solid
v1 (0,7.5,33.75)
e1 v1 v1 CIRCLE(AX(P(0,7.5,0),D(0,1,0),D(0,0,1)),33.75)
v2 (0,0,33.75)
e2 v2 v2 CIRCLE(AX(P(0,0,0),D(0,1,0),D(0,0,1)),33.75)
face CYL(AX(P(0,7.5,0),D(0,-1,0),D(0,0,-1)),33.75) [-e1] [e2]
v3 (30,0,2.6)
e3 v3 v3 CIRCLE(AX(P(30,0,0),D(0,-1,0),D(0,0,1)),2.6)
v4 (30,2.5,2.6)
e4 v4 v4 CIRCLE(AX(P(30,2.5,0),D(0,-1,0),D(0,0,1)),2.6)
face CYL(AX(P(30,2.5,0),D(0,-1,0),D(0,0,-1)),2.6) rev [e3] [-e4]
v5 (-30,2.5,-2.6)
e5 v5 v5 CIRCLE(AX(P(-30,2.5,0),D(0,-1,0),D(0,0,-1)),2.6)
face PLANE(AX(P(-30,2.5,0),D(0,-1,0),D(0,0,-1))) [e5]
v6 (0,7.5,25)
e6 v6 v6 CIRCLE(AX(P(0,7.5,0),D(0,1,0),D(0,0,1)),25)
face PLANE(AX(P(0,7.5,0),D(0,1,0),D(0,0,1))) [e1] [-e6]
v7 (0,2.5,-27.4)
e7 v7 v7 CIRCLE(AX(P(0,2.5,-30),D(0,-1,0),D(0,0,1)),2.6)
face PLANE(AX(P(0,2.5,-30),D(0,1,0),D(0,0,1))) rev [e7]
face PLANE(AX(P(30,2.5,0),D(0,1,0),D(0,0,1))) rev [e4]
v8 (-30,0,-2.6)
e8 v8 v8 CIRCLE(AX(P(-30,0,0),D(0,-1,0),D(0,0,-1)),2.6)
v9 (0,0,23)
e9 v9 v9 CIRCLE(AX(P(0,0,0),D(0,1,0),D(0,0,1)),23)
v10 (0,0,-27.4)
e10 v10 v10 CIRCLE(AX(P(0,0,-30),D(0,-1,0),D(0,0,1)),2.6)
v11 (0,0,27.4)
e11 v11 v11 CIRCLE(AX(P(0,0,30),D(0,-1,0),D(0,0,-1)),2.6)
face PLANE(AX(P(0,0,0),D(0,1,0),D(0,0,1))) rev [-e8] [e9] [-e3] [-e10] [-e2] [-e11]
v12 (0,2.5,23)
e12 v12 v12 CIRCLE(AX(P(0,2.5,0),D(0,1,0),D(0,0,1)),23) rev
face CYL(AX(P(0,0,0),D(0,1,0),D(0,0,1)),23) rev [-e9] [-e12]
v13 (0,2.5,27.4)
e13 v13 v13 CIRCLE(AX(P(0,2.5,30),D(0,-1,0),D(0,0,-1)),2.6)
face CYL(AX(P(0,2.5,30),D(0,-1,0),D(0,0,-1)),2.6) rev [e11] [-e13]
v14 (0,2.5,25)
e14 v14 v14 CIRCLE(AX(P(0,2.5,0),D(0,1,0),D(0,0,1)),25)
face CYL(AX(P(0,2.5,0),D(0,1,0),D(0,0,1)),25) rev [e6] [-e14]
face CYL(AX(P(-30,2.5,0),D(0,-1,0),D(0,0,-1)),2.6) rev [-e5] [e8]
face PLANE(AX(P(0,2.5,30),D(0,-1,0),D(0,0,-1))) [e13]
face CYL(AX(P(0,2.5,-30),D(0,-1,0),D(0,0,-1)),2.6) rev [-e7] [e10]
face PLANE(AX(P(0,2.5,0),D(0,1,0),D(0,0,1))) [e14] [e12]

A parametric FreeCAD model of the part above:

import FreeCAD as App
import Part
import Sketcher
from FreeCAD import Vector
Q = App.Units.Quantity

doc = App.newDocument("Part")
body = doc.addObject("PartDesign::Body", "Body")

sketch1 = body.newObject("Sketcher::SketchObject", "Sketch")
sketch1.AttachmentSupport = (doc.getObject("XZ_Plane"), [""])
sketch1.MapMode = "FlatFace"
sketch1.addGeometry(Part.Circle(Vector(0, 0, 0), Vector(0, 0, 1), 34), False)
sketch1.addConstraint(Sketcher.Constraint("Coincident", 0, 3, -1, 1))
sketch1.addConstraint(Sketcher.Constraint("Diameter", 0, Q("67.5 mm")))
pad1 = body.newObject("PartDesign::Pad", "Pad")
pad1.Profile = sketch1
pad1.Length = 7.5
pad1.Reversed = True

sketch2 = body.newObject("Sketcher::SketchObject", "Sketch001")
sketch2.AttachmentSupport = (doc.getObject("XZ_Plane"), [""])
sketch2.MapMode = "FlatFace"
sketch2.addGeometry(Part.Circle(Vector(-30, 0, 0), Vector(0, 0, 1), 2.6), False)
sketch2.addGeometry(Part.Circle(Vector(30, 0, 0), Vector(0, 0, 1), 2.6), False)
sketch2.addGeometry(Part.Circle(Vector(0, -30, 0), Vector(0, 0, 1), 2.6), False)
sketch2.addGeometry(Part.Circle(Vector(0, 30, 0), Vector(0, 0, 1), 2.6), False)
sketch2.addConstraint(Sketcher.Constraint("Equal", 0, 1))
sketch2.addConstraint(Sketcher.Constraint("Equal", 1, 2))
sketch2.addConstraint(Sketcher.Constraint("Equal", 2, 3))
sketch2.addConstraint(Sketcher.Constraint("Symmetric", 0, 3, 1, 3, -1, 1))
sketch2.addConstraint(Sketcher.Constraint("Symmetric", 2, 3, 3, 3, -1, 1))
sketch2.addConstraint(Sketcher.Constraint("PointOnObject", 0, 3, -1))
sketch2.addConstraint(Sketcher.Constraint("PointOnObject", 2, 3, -2))
sketch2.addConstraint(Sketcher.Constraint("Diameter", 0, Q("5.2 mm")))
sketch2.addConstraint(Sketcher.Constraint("DistanceX", 0, 3, -1, 1, Q("30 mm")))
sketch2.addConstraint(Sketcher.Constraint("DistanceY", 2, 3, -1, 1, Q("30 mm")))
pocket1 = body.newObject("PartDesign::Pocket", "Pocket")
pocket1.Profile = sketch2
pocket1.Length = 2.5

sketch3 = body.newObject("Sketcher::SketchObject", "Sketch002")
sketch3.AttachmentSupport = (doc.getObject("XZ_Plane"), [""])
sketch3.MapMode = "FlatFace"
sketch3.AttachmentOffset = App.Placement(Vector(0, 0, -7.5), App.Rotation())
sketch3.addGeometry(Part.Circle(Vector(0, 0, 0), Vector(0, 0, 1), 23), False)
sketch3.addConstraint(Sketcher.Constraint("Coincident", 0, 3, -1, 1))
sketch3.addConstraint(Sketcher.Constraint("Diameter", 0, Q("46 mm")))
pocket2 = body.newObject("PartDesign::Pocket", "Pocket001")
pocket2.Profile = sketch3
pocket2.Type = "ThroughAll"
pocket2.Reversed = True

sketch4 = body.newObject("Sketcher::SketchObject", "Sketch003")
sketch4.AttachmentSupport = (doc.getObject("XZ_Plane"), [""])
sketch4.MapMode = "FlatFace"
sketch4.AttachmentOffset = App.Placement(Vector(0, 0, -7.5), App.Rotation())
sketch4.addGeometry(Part.Circle(Vector(0, 0, 0), Vector(0, 0, 1), 25), False)
sketch4.addConstraint(Sketcher.Constraint("Coincident", 0, 3, -1, 1))
sketch4.addConstraint(Sketcher.Constraint("Diameter", 0, Q("50 mm")))
pocket3 = body.newObject("PartDesign::Pocket", "Pocket002")
pocket3.Profile = sketch4
pocket3.Length = 5
pocket3.Reversed = True

doc.recompute()
